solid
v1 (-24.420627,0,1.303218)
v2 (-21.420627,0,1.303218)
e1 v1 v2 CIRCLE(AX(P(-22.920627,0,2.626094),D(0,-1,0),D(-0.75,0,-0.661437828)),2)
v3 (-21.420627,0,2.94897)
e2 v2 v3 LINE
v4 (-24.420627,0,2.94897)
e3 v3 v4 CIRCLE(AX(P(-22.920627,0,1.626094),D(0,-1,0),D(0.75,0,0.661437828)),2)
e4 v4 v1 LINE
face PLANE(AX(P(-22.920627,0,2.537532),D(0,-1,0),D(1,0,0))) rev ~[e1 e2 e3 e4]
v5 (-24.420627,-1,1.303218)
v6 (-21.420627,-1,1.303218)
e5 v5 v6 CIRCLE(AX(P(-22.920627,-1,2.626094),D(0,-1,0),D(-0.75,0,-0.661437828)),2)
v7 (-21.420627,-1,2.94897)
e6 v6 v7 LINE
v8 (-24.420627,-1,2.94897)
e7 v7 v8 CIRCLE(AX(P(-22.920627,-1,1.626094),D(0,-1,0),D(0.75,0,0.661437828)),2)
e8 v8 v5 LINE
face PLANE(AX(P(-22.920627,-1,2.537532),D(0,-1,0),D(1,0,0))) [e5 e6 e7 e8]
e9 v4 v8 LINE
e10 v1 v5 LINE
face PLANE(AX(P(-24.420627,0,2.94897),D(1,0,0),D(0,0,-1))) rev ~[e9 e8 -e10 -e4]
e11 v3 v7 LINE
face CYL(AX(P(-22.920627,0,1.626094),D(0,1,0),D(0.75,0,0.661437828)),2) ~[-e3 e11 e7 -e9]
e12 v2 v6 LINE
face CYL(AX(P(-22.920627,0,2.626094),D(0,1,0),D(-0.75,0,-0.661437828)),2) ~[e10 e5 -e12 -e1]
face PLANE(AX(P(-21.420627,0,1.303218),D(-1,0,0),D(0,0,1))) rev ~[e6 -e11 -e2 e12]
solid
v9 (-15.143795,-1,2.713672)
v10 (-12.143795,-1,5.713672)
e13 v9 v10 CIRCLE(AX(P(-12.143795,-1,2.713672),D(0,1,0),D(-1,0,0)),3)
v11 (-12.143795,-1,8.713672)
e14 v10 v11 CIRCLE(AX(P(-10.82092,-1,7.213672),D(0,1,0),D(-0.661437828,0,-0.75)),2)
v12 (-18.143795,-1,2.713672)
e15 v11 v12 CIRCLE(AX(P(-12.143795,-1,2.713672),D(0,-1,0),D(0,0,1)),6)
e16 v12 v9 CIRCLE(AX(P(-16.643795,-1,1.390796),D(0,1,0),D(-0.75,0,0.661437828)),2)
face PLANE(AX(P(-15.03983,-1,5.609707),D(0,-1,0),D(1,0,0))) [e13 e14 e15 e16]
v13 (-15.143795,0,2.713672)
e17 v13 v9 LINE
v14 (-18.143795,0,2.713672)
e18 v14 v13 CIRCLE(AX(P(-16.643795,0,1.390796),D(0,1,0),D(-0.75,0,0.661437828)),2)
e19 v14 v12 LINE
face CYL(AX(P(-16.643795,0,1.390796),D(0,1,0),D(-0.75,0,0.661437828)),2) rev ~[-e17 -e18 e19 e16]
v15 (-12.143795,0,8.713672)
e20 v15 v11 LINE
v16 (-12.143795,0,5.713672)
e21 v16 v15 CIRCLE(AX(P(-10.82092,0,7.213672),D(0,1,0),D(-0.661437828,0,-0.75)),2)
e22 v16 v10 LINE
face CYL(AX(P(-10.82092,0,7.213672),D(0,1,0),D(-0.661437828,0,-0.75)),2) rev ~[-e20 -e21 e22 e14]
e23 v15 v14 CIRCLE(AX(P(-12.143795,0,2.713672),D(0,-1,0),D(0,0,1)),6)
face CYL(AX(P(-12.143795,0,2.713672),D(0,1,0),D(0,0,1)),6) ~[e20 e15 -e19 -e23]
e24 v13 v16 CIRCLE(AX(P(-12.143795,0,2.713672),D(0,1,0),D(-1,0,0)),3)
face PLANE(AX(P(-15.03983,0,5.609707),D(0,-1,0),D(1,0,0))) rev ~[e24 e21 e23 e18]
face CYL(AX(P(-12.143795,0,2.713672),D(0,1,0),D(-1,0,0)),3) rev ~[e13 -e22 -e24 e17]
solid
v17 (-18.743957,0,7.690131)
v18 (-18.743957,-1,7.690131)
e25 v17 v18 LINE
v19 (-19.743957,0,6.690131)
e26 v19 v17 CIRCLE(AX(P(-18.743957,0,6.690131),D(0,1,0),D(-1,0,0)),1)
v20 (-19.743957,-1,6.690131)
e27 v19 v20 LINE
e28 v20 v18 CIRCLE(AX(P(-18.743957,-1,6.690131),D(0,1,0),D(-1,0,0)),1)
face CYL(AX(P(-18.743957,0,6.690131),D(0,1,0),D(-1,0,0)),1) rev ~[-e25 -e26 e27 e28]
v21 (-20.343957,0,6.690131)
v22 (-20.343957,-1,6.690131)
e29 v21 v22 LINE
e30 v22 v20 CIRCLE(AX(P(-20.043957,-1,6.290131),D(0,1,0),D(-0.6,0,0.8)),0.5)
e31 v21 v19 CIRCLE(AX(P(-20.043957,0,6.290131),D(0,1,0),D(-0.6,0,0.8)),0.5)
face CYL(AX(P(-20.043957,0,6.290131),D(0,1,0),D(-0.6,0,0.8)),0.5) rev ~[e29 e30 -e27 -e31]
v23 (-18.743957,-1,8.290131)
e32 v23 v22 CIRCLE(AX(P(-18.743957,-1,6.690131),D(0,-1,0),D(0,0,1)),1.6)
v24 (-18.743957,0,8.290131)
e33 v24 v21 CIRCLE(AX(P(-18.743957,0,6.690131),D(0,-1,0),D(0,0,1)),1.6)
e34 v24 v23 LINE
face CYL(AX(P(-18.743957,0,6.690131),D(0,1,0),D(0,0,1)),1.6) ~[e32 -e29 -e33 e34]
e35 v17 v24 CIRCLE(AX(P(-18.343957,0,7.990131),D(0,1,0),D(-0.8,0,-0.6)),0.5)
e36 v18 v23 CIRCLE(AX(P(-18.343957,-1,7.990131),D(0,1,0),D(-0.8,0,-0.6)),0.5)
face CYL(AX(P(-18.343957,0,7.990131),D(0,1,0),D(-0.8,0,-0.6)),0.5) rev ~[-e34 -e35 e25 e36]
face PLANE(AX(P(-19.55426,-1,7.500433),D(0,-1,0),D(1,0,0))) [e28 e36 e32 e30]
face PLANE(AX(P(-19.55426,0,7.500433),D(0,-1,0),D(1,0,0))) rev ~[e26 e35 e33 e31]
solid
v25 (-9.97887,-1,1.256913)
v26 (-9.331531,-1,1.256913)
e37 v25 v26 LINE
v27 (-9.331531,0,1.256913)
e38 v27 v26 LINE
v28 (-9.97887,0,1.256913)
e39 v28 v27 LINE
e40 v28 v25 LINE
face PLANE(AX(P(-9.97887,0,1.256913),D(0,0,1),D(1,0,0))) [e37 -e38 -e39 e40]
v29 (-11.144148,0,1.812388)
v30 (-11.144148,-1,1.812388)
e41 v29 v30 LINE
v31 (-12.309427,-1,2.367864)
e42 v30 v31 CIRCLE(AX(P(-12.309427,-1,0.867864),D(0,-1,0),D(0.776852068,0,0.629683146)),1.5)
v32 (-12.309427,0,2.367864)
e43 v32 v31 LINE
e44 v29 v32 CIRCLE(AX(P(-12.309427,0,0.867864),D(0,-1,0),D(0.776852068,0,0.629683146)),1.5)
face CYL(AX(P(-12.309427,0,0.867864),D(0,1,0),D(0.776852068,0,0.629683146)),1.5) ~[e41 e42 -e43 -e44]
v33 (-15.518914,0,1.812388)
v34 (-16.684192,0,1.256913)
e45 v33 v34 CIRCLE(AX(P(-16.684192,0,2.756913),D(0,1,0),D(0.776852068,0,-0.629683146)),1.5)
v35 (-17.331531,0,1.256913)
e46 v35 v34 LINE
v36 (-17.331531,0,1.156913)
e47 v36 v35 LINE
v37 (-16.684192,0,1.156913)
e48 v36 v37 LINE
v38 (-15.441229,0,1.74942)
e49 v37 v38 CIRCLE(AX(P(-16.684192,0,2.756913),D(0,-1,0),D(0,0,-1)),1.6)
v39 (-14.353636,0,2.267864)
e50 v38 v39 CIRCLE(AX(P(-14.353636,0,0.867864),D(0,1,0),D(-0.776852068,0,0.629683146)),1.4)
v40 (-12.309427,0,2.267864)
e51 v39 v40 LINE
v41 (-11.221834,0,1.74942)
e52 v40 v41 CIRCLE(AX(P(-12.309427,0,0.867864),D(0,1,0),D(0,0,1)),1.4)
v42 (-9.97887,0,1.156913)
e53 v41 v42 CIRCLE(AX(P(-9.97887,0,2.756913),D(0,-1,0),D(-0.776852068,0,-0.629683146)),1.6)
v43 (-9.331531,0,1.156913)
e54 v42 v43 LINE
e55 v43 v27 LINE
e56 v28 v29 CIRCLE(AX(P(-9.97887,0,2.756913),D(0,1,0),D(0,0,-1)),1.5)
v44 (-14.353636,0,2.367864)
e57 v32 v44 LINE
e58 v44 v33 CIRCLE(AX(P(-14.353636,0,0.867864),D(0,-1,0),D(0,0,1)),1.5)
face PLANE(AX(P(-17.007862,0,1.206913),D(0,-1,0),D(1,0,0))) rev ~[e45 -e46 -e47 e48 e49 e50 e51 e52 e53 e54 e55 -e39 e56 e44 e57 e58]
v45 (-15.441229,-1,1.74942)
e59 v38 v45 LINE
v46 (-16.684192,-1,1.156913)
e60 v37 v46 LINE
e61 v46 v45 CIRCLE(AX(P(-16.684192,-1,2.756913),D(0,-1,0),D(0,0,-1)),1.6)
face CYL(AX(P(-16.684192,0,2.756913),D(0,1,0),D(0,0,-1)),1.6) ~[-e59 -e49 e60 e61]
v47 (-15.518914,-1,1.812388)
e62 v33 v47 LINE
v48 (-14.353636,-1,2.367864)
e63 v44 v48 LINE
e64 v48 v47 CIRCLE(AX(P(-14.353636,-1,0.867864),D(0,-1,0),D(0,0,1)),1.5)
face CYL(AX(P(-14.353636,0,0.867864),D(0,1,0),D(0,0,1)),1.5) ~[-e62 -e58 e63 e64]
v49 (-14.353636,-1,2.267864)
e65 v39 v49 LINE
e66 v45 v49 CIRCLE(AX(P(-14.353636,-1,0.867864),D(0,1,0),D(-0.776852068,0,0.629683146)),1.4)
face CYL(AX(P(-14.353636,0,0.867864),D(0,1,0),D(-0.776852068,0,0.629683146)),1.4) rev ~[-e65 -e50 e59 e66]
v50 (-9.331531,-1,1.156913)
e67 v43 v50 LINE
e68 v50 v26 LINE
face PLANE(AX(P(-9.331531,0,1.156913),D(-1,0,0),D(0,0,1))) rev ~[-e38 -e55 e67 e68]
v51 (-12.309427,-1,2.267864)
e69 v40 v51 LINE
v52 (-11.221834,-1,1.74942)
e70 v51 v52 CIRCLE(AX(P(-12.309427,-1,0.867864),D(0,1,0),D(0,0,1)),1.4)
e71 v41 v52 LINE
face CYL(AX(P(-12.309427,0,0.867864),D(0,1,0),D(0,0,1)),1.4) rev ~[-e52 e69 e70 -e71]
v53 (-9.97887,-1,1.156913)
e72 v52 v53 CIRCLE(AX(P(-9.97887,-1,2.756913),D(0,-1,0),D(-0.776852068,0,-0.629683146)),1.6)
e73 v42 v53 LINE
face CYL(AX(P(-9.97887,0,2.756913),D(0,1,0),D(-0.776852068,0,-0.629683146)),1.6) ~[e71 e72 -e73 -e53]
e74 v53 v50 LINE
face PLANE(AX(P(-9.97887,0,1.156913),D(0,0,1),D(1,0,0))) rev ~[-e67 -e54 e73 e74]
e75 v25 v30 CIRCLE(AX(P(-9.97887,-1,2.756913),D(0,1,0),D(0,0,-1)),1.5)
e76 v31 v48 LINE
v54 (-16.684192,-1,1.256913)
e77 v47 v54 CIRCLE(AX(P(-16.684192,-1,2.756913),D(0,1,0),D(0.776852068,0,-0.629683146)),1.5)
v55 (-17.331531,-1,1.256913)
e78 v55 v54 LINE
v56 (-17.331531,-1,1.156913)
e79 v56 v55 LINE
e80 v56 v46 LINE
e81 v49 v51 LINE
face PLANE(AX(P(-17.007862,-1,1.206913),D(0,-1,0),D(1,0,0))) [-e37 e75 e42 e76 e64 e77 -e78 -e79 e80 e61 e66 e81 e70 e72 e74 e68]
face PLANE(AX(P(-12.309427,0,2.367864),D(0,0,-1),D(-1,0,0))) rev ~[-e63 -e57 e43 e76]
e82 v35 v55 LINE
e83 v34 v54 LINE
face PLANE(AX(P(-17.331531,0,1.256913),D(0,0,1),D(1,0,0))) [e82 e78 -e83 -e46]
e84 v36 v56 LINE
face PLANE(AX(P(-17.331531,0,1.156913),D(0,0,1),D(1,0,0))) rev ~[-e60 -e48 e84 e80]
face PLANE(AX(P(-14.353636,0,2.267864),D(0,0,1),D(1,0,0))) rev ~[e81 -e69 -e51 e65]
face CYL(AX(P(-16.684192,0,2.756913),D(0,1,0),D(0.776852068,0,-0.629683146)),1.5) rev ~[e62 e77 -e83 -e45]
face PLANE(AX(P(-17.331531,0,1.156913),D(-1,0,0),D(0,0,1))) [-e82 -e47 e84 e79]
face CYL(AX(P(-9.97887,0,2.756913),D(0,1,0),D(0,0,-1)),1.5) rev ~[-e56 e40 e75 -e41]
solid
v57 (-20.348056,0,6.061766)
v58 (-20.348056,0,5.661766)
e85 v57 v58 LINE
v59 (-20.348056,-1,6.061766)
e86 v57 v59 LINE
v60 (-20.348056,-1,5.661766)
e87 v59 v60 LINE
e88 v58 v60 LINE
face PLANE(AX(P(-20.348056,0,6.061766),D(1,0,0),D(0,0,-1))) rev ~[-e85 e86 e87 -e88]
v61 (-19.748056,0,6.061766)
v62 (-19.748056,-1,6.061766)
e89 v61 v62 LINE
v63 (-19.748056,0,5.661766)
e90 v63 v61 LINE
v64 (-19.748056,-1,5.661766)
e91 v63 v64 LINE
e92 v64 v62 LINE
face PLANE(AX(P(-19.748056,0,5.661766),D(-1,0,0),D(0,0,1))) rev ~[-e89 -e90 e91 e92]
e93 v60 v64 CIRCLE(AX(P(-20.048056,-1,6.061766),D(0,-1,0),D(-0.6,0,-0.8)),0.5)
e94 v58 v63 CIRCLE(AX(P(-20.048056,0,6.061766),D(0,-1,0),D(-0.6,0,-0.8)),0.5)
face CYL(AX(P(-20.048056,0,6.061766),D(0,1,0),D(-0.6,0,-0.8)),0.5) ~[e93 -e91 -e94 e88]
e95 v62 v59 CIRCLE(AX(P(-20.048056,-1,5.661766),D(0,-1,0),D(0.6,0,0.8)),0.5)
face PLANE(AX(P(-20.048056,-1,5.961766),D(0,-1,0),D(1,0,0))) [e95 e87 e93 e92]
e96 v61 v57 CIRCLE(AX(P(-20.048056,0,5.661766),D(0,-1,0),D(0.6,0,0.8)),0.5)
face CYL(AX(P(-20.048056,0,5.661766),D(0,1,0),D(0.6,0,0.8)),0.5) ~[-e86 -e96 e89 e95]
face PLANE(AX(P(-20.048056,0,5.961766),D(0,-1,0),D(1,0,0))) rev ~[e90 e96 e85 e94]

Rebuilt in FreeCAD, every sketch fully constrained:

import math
import FreeCAD as App
import Part
import Sketcher
from FreeCAD import Vector
Q = App.Units.Quantity

doc = App.newDocument("Part")
body = doc.addObject("PartDesign::Body", "Body")

sketch1 = doc.addObject("Sketcher::SketchObject", "Sketch")
body.addObject(sketch1)
sketch1.AttachmentSupport = (doc.XZ_Plane, [""])
sketch1.MapMode = "FlatFace"
sketch1.addGeometry([
    Part.LineSegment(Vector(-24.420627, 2.94897, 0), Vector(-24.420627, 1.303218, 0)),
    Part.ArcOfCircle(Part.Circle(Vector(-22.920627, 2.626094, 0), Vector(0, 0, 1), 2), math.radians(-138.590378), math.radians(-41.409622)),
    Part.LineSegment(Vector(-21.420627, 1.303218, 0), Vector(-21.420627, 2.94897, 0)),
    Part.ArcOfCircle(Part.Circle(Vector(-22.920627, 1.626094, 0), Vector(0, 0, 1), 2), math.radians(41.409622), math.radians(138.590378)),
], False)
sketch1.addConstraint([
    Sketcher.Constraint("Coincident", 0, 2, 1, 1),
    Sketcher.Constraint("Coincident", 1, 2, 2, 1),
    Sketcher.Constraint("Coincident", 2, 2, 3, 1),
    Sketcher.Constraint("Coincident", 3, 2, 0, 1),
    Sketcher.Constraint("Vertical", 0),
    Sketcher.Constraint("Vertical", 2),
    Sketcher.Constraint("Equal", 1, 3),
    Sketcher.Constraint("Horizontal", 0, 2, 1, 2),
    Sketcher.Constraint("Horizontal", 2, 2, 3, 2),
    Sketcher.Constraint("Radius", 1, Q("2 mm")),
    Sketcher.Constraint("DistanceY", 3, 3, 1, 3, Q("1 mm")),
    Sketcher.Constraint("DistanceX", 0, 2, 1, 2, Q("3 mm")),
    Sketcher.Constraint("DistanceY", -1, 1, 0, 2, Q("1.303218 mm")),
    Sketcher.Constraint("DistanceX", 1, 3, -1, 1, Q("22.920627 mm")),
])
pad1 = doc.addObject("PartDesign::Pad", "Pad")
body.addObject(pad1)
pad1.Profile = sketch1
pad1.Length = 1
body2 = doc.addObject("PartDesign::Body", "Body001")

sketch2 = doc.addObject("Sketcher::SketchObject", "Sketch001")
body2.addObject(sketch2)
sketch2.AttachmentSupport = (doc.getObject("XZ_Plane001"), [""])
sketch2.MapMode = "FlatFace"
sketch2.addGeometry([
    Part.LineSegment(Vector(-20.348056, 6.061766, 0), Vector(-20.348056, 5.661766, 0)),
    Part.ArcOfCircle(Part.Circle(Vector(-20.048056, 6.061766, 0), Vector(0, 0, 1), 0.5), math.radians(-126.869898), math.radians(-53.130102)),
    Part.LineSegment(Vector(-19.748056, 5.661766, 0), Vector(-19.748056, 6.061766, 0)),
    Part.ArcOfCircle(Part.Circle(Vector(-20.048056, 5.661766, 0), Vector(0, 0, 1), 0.5), math.radians(53.130102), math.radians(126.869898)),
], False)
sketch2.addConstraint([
    Sketcher.Constraint("Coincident", 0, 2, 1, 1),
    Sketcher.Constraint("Coincident", 1, 2, 2, 1),
    Sketcher.Constraint("Coincident", 2, 2, 3, 1),
    Sketcher.Constraint("Coincident", 3, 2, 0, 1),
    Sketcher.Constraint("Vertical", 0),
    Sketcher.Constraint("Vertical", 2),
    Sketcher.Constraint("Equal", 1, 3),
    Sketcher.Constraint("Horizontal", 3, 3, 0, 2),
    Sketcher.Constraint("Horizontal", 0, 2, 1, 2),
    Sketcher.Constraint("Horizontal", 1, 3, 2, 2),
    Sketcher.Constraint("Radius", 1, Q("0.5 mm")),
    Sketcher.Constraint("DistanceY", 0, 2, 0, 1, Q("0.4 mm")),
    Sketcher.Constraint("DistanceX", 1, 3, -1, 1, Q("20.048056 mm")),
    Sketcher.Constraint("DistanceY", -1, 1, 1, 3, Q("6.061766 mm")),
])
pad2 = doc.addObject("PartDesign::Pad", "Pad001")
body2.addObject(pad2)
pad2.Profile = sketch2
pad2.Length = 1
body3 = doc.addObject("PartDesign::Body", "Body002")

sketch3 = doc.addObject("Sketcher::SketchObject", "Sketch002")
body3.addObject(sketch3)
sketch3.AttachmentSupport = (doc.getObject("XZ_Plane002"), [""])
sketch3.MapMode = "FlatFace"
sketch3.addGeometry([
    Part.ArcOfCircle(Part.Circle(Vector(-10.82092, 7.213672, 0), Vector(0, 0, 1), 2), math.radians(131.409622), math.radians(228.590378)),
    Part.ArcOfCircle(Part.Circle(Vector(-12.143795, 2.713672, 0), Vector(0, 0, 1), 6), math.radians(90), math.radians(180)),
    Part.ArcOfCircle(Part.Circle(Vector(-16.643795, 1.390796, 0), Vector(0, 0, 1), 2), math.radians(41.409622), math.radians(138.590378)),
    Part.ArcOfCircle(Part.Circle(Vector(-12.143795, 2.713672, 0), Vector(0, 0, 1), 3), math.radians(90), math.radians(180)),
], False)
sketch3.addConstraint([
    Sketcher.Constraint("Coincident", 0, 1, 1, 1),
    Sketcher.Constraint("Coincident", 1, 2, 2, 2),
    Sketcher.Constraint("Coincident", 2, 1, 3, 2),
    Sketcher.Constraint("Coincident", 3, 1, 0, 2),
    Sketcher.Constraint("Coincident", 3, 3, 1, 3),
    Sketcher.Constraint("Equal", 0, 2),
    Sketcher.Constraint("Horizontal", 3, 3, 1, 2),
    Sketcher.Constraint("Horizontal", 1, 2, 2, 1),
    Sketcher.Constraint("Vertical", 3, 3, 0, 1),
    Sketcher.Constraint("Vertical", 0, 1, 3, 1),
    Sketcher.Constraint("Radius", 0, Q("2 mm")),
    Sketcher.Constraint("Radius", 1, Q("6 mm")),
    Sketcher.Constraint("Radius", 3, Q("3 mm")),
    Sketcher.Constraint("DistanceX", 0, 3, -1, 1, Q("10.82092 mm")),
    Sketcher.Constraint("DistanceY", -1, 1, 0, 3, Q("7.213672 mm")),
])
pad3 = doc.addObject("PartDesign::Pad", "Pad002")
body3.addObject(pad3)
pad3.Profile = sketch3
pad3.Length = 1
body4 = doc.addObject("PartDesign::Body", "Body003")

sketch4 = doc.addObject("Sketcher::SketchObject", "Sketch003")
body4.addObject(sketch4)
sketch4.AttachmentSupport = (doc.getObject("XZ_Plane003"), [""])
sketch4.MapMode = "FlatFace"
sketch4.addGeometry([
    Part.ArcOfCircle(Part.Circle(Vector(-18.343957, 7.990131, 0), Vector(0, 0, 1), 0.5), math.radians(143.130102), math.radians(216.869898)),
    Part.ArcOfCircle(Part.Circle(Vector(-18.743957, 6.690131, 0), Vector(0, 0, 1), 1.6), math.radians(90), math.radians(180)),
    Part.ArcOfCircle(Part.Circle(Vector(-20.043957, 6.290131, 0), Vector(0, 0, 1), 0.5), math.radians(53.130102), math.radians(126.869898)),
    Part.ArcOfCircle(Part.Circle(Vector(-18.743957, 6.690131, 0), Vector(0, 0, 1), 1), math.radians(90), math.radians(180)),
], False)
sketch4.addConstraint([
    Sketcher.Constraint("Coincident", 0, 1, 1, 1),
    Sketcher.Constraint("Coincident", 1, 2, 2, 2),
    Sketcher.Constraint("Coincident", 2, 1, 3, 2),
    Sketcher.Constraint("Coincident", 3, 1, 0, 2),
    Sketcher.Constraint("Coincident", 3, 3, 1, 3),
    Sketcher.Constraint("Equal", 0, 2),
    Sketcher.Constraint("Horizontal", 3, 3, 1, 2),
    Sketcher.Constraint("Horizontal", 1, 2, 2, 1),
    Sketcher.Constraint("Vertical", 3, 3, 0, 1),
    Sketcher.Constraint("Vertical", 0, 1, 3, 1),
    Sketcher.Constraint("Radius", 3, Q("1 mm")),
    Sketcher.Constraint("Radius", 0, Q("0.5 mm")),
    Sketcher.Constraint("Radius", 1, Q("1.6 mm")),
    Sketcher.Constraint("DistanceY", -1, 1, 0, 3, Q("7.990131 mm")),
    Sketcher.Constraint("DistanceX", 0, 3, -1, 1, Q("18.343957 mm")),
])
pad4 = doc.addObject("PartDesign::Pad", "Pad003")
body4.addObject(pad4)
pad4.Profile = sketch4
pad4.Length = 1
body5 = doc.addObject("PartDesign::Body", "Body004")

sketch5 = doc.addObject("Sketcher::SketchObject", "Sketch004")
body5.addObject(sketch5)
sketch5.AttachmentSupport = (doc.getObject("XZ_Plane004"), [""])
sketch5.MapMode = "FlatFace"
sketch5.addGeometry([
    Part.LineSegment(Vector(-17.331531, 1.256913, 0), Vector(-17.331531, 1.156913, 0)),
    Part.LineSegment(Vector(-17.331531, 1.156913, 0), Vector(-16.684192, 1.156913, 0)),
    Part.ArcOfCircle(Part.Circle(Vector(-16.684192, 2.756913, 0), Vector(0, 0, 1), 1.6), math.radians(-90), math.radians(-39.026749)),
    Part.ArcOfCircle(Part.Circle(Vector(-14.353636, 0.867864, 0), Vector(0, 0, 1), 1.4), math.radians(90), math.radians(140.973251)),
    Part.LineSegment(Vector(-14.353636, 2.267864, 0), Vector(-12.309427, 2.267864, 0)),
    Part.ArcOfCircle(Part.Circle(Vector(-12.309427, 0.867864, 0), Vector(0, 0, 1), 1.4), math.radians(39.026749), math.radians(90)),
    Part.ArcOfCircle(Part.Circle(Vector(-9.97887, 2.756913, 0), Vector(0, 0, 1), 1.6), math.radians(-140.973251), math.radians(-90)),
    Part.LineSegment(Vector(-9.97887, 1.156913, 0), Vector(-9.331531, 1.156913, 0)),
    Part.LineSegment(Vector(-9.331531, 1.156913, 0), Vector(-9.331531, 1.256913, 0)),
    Part.LineSegment(Vector(-9.331531, 1.256913, 0), Vector(-9.97887, 1.256913, 0)),
    Part.ArcOfCircle(Part.Circle(Vector(-9.97887, 2.756913, 0), Vector(0, 0, 1), 1.5), math.radians(-140.973251), math.radians(-90)),
    Part.ArcOfCircle(Part.Circle(Vector(-12.309427, 0.867864, 0), Vector(0, 0, 1), 1.5), math.radians(39.026749), math.radians(90)),
    Part.LineSegment(Vector(-12.309427, 2.367864, 0), Vector(-14.353636, 2.367864, 0)),
    Part.ArcOfCircle(Part.Circle(Vector(-14.353636, 0.867864, 0), Vector(0, 0, 1), 1.5), math.radians(90), math.radians(140.973251)),
    Part.ArcOfCircle(Part.Circle(Vector(-16.684192, 2.756913, 0), Vector(0, 0, 1), 1.5), math.radians(-90), math.radians(-39.026749)),
    Part.LineSegment(Vector(-16.684192, 1.256913, 0), Vector(-17.331531, 1.256913, 0)),
], False)
sketch5.addConstraint([
    Sketcher.Constraint("Coincident", 0, 2, 1, 1),
    Sketcher.Constraint("Tangent", 1, 2, 2, 1),
    Sketcher.Constraint("Tangent", 2, 2, 3, 2),
    Sketcher.Constraint("Tangent", 3, 1, 4, 1),
    Sketcher.Constraint("Tangent", 4, 2, 5, 2),
    Sketcher.Constraint("Tangent", 5, 1, 6, 1),
    Sketcher.Constraint("Tangent", 6, 2, 7, 1),
    Sketcher.Constraint("Coincident", 7, 2, 8, 1),
    Sketcher.Constraint("Coincident", 8, 2, 9, 1),
    Sketcher.Constraint("Tangent", 9, 2, 10, 2),
    Sketcher.Constraint("Tangent", 10, 1, 11, 1),
    Sketcher.Constraint("Tangent", 11, 2, 12, 1),
    Sketcher.Constraint("Tangent", 12, 2, 13, 1),
    Sketcher.Constraint("Tangent", 13, 2, 14, 2),
    Sketcher.Constraint("Tangent", 14, 1, 15, 1),
    Sketcher.Constraint("Coincident", 15, 2, 0, 1),
    Sketcher.Constraint("Vertical", 0),
    Sketcher.Constraint("Horizontal", 1),
    Sketcher.Constraint("Horizontal", 4),
    Sketcher.Constraint("Horizontal", 7),
    Sketcher.Constraint("Vertical", 8),
    Sketcher.Constraint("Horizontal", 9),
    Sketcher.Constraint("Horizontal", 12),
    Sketcher.Constraint("Horizontal", 15),
    Sketcher.Constraint("Coincident", 10, 3, 6, 3),
    Sketcher.Constraint("Coincident", 11, 3, 5, 3),
    Sketcher.Constraint("Coincident", 13, 3, 3, 3),
    Sketcher.Constraint("Coincident", 14, 3, 2, 3),
    Sketcher.Constraint("Equal", 3, 5),
    Sketcher.Constraint("Equal", 2, 6),
    Sketcher.Constraint("Equal", 10, 11),
    Sketcher.Constraint("Horizontal", 2, 3, 6, 3),
    Sketcher.Constraint("Equal", 1, 7),
    Sketcher.Constraint("Radius", 2, Q("1.6 mm")),
    Sketcher.Constraint("Radius", 3, Q("1.4 mm")),
    Sketcher.Constraint("DistanceX", 1, 1, 1, 2, Q("0.647339 mm")),
    Sketcher.Constraint("DistanceX", 4, 1, 4, 2, Q("2.04421 mm")),
    Sketcher.Constraint("DistanceX", 6, 3, -1, 1, Q("9.97887 mm")),
    Sketcher.Constraint("DistanceX", 0, 2, -1, 1, Q("17.331531 mm")),
    Sketcher.Constraint("DistanceY", -1, 1, 2, 2, Q("1.74942 mm")),
])
pad5 = doc.addObject("PartDesign::Pad", "Pad004")
body5.addObject(pad5)
pad5.Profile = sketch5
pad5.Length = 1

doc.recompute()
